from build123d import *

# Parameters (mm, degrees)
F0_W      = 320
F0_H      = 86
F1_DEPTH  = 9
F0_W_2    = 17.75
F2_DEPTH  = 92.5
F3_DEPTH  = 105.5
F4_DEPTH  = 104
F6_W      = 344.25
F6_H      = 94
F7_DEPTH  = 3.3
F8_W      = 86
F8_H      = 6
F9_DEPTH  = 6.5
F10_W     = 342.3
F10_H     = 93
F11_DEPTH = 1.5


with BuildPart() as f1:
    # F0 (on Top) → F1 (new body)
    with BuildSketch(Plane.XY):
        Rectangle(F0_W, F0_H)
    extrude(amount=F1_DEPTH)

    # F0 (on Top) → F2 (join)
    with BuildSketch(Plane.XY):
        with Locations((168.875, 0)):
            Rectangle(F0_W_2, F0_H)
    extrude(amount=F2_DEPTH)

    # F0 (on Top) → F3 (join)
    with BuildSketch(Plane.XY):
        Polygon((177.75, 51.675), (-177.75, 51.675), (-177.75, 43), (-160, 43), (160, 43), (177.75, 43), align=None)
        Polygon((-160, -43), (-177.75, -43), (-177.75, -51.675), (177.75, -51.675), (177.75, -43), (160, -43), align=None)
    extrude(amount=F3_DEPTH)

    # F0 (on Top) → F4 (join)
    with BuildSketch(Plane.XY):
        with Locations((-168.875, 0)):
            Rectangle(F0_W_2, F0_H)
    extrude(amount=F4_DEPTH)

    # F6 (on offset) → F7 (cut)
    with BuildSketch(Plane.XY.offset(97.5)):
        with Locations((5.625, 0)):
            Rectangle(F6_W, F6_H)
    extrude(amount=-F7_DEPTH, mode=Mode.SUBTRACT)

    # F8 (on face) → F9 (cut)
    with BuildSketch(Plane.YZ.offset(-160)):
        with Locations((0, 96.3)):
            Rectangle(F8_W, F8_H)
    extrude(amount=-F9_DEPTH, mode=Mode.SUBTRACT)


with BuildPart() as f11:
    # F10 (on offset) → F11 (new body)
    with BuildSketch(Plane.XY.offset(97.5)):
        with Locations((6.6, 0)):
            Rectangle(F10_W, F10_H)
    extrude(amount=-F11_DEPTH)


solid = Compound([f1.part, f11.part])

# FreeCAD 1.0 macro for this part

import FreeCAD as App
import Part
import Sketcher

V = App.Vector


def add_polygon(sketch, points):
    """Adds a closed chain of lines whose ends are joined by coincident constraints."""
    first, n = sketch.GeometryCount, len(points)
    for a, b in zip(points, points[1:] + points[:1]):
        sketch.addGeometry(Part.LineSegment(App.Vector(*a, 0), App.Vector(*b, 0)), False)
    for i in range(n):
        sketch.addConstraint(Sketcher.Constraint("Coincident", first + i, 2, first + (i + 1) % n, 1))

doc = App.newDocument("Part")
body = doc.addObject("PartDesign::Body", "Body")

sketch1 = doc.addObject("Sketcher::SketchObject", "Sketch")
body.addObject(sketch1)
sketch1.AttachmentSupport = (doc.XY_Plane, [""])
sketch1.MapMode = "FlatFace"
add_polygon(sketch1, [(-160, 43), (-160, -43), (160, -43), (160, 43)])
sketch1.addConstraint([
    Sketcher.Constraint("Vertical", 0),
    Sketcher.Constraint("Horizontal", 1),
    Sketcher.Constraint("Vertical", 2),
    Sketcher.Constraint("Horizontal", 3),
    Sketcher.Constraint("Symmetric", 0, 2, 2, 2, -1, 1),
    Sketcher.Constraint("DistanceX", 1, 1, 1, 2, 320.0),
    Sketcher.Constraint("DistanceY", 0, 2, 0, 1, 86.0),
])
pad1 = doc.addObject("PartDesign::Pad", "Pad")
body.addObject(pad1)
pad1.Profile = sketch1
pad1.Length = 9

sketch2 = doc.addObject("Sketcher::SketchObject", "Sketch001")
body.addObject(sketch2)
sketch2.AttachmentSupport = (doc.XY_Plane, [""])
sketch2.MapMode = "FlatFace"
add_polygon(sketch2, [(160, 43), (160, -43), (178, -43), (178, 43)])
sketch2.addConstraint([
    Sketcher.Constraint("Vertical", 0),
    Sketcher.Constraint("Horizontal", 1),
    Sketcher.Constraint("Vertical", 2),
    Sketcher.Constraint("Horizontal", 3),
    Sketcher.Constraint("DistanceY", 0, 2, 0, 1, 86.0),
    Sketcher.Constraint("DistanceX", -1, 1, 0, 2, 160.0),
    Sketcher.Constraint("DistanceY", 0, 2, -1, 1, 43.0),
    Sketcher.Constraint("DistanceX", 1, 1, 1, 2, 17.75),
])
pad2 = doc.addObject("PartDesign::Pad", "Pad001")
body.addObject(pad2)
pad2.Profile = sketch2
pad2.Length = 92.5

sketch3 = doc.addObject("Sketcher::SketchObject", "Sketch002")
body.addObject(sketch3)
sketch3.AttachmentSupport = (doc.XY_Plane, [""])
sketch3.MapMode = "FlatFace"
add_polygon(sketch3, [(178, 52), (-178, 52), (-178, 43), (178, 43)])
add_polygon(sketch3, [(-178, -43), (-178, -52), (178, -52), (178, -43)])
sketch3.addConstraint([
    Sketcher.Constraint("Horizontal", 0),
    Sketcher.Constraint("Vertical", 1),
    Sketcher.Constraint("Horizontal", 2),
    Sketcher.Constraint("Vertical", 3),
    Sketcher.Constraint("Vertical", 4),
    Sketcher.Constraint("Horizontal", 5),
    Sketcher.Constraint("Vertical", 6),
    Sketcher.Constraint("Horizontal", 7),
    Sketcher.Constraint("Symmetric", 3, 2, 4, 2, -1, 1),
    Sketcher.Constraint("Symmetric", 1, 2, 6, 2, -1, 1),
    Sketcher.Constraint("Vertical", 1, 2, 4, 2),
    Sketcher.Constraint("DistanceX", 0, 2, 0, 1, 355.5),
    Sketcher.Constraint("DistanceY", -1, 1, 1, 2, 43.0),
    Sketcher.Constraint("DistanceY", 1, 2, 1, 1, 8.675),
])
pad3 = doc.addObject("PartDesign::Pad", "Pad002")
body.addObject(pad3)
pad3.Profile = sketch3
pad3.Length = 105.5

sketch4 = doc.addObject("Sketcher::SketchObject", "Sketch003")
body.addObject(sketch4)
sketch4.AttachmentSupport = (doc.XY_Plane, [""])
sketch4.MapMode = "FlatFace"
add_polygon(sketch4, [(-178, 43), (-178, -43), (-160, -43), (-160, 43)])
sketch4.addConstraint([
    Sketcher.Constraint("Vertical", 0),
    Sketcher.Constraint("Horizontal", 1),
    Sketcher.Constraint("Vertical", 2),
    Sketcher.Constraint("Horizontal", 3),
    Sketcher.Constraint("DistanceY", 0, 2, 0, 1, 86.0),
    Sketcher.Constraint("DistanceY", 0, 2, -1, 1, 43.0),
    Sketcher.Constraint("DistanceX", 1, 2, -1, 1, 160.0),
    Sketcher.Constraint("DistanceX", 1, 1, 1, 2, 17.75),
])
pad4 = doc.addObject("PartDesign::Pad", "Pad003")
body.addObject(pad4)
pad4.Profile = sketch4
pad4.Length = 104

sketch5 = doc.addObject("Sketcher::SketchObject", "Sketch004")
body.addObject(sketch5)
sketch5.AttachmentSupport = (doc.XY_Plane, [""])
sketch5.MapMode = "FlatFace"
sketch5.AttachmentOffset = App.Placement(V(0, 0, 97.5), App.Rotation())
add_polygon(sketch5, [(-166, 47), (-166, -47), (178, -47), (178, 47)])
sketch5.addConstraint([
    Sketcher.Constraint("Vertical", 0),
    Sketcher.Constraint("Horizontal", 1),
    Sketcher.Constraint("Vertical", 2),
    Sketcher.Constraint("Horizontal", 3),
    Sketcher.Constraint("DistanceY", 0, 2, 0, 1, 94.0),
    Sketcher.Constraint("DistanceY", 0, 2, -1, 1, 47.0),
    Sketcher.Constraint("DistanceX", 1, 1, 1, 2, 344.25),
    Sketcher.Constraint("DistanceX", 0, 2, -1, 1, 166.5),
])
pocket1 = doc.addObject("PartDesign::Pocket", "Pocket")
body.addObject(pocket1)
pocket1.Profile = sketch5
pocket1.Length = 3.3

sketch6 = doc.addObject("Sketcher::SketchObject", "Sketch005")
body.addObject(sketch6)
sketch6.AttachmentSupport = (doc.YZ_Plane, [""])
sketch6.MapMode = "FlatFace"
sketch6.AttachmentOffset = App.Placement(V(0, 0, -160), App.Rotation())
add_polygon(sketch6, [(-43, 99), (-43, 93), (43, 93), (43, 99)])
sketch6.addConstraint([
    Sketcher.Constraint("Vertical", 0),
    Sketcher.Constraint("Horizontal", 1),
    Sketcher.Constraint("Vertical", 2),
    Sketcher.Constraint("Horizontal", 3),
    Sketcher.Constraint("DistanceX", 1, 1, 1, 2, 86.0),
    Sketcher.Constraint("DistanceY", 0, 2, 0, 1, 6.0),
    Sketcher.Constraint("DistanceX", 0, 2, -1, 1, 43.0),
    Sketcher.Constraint("DistanceY", -1, 1, 0, 2, 93.3),
])
pocket2 = doc.addObject("PartDesign::Pocket", "Pocket001")
body.addObject(pocket2)
pocket2.Profile = sketch6
pocket2.Length = 6.5
body2 = doc.addObject("PartDesign::Body", "Body001")

sketch7 = doc.addObject("Sketcher::SketchObject", "Sketch006")
body2.addObject(sketch7)
sketch7.AttachmentSupport = (doc.getObject("XY_Plane001"), [""])
sketch7.MapMode = "FlatFace"
sketch7.AttachmentOffset = App.Placement(V(0, 0, 97.5), App.Rotation())
add_polygon(sketch7, [(-165, 46), (-165, -46), (178, -46), (178, 46)])
sketch7.addConstraint([
    Sketcher.Constraint("Vertical", 0),
    Sketcher.Constraint("Horizontal", 1),
    Sketcher.Constraint("Vertical", 2),
    Sketcher.Constraint("Horizontal", 3),
    Sketcher.Constraint("DistanceY", 0, 2, 0, 1, 93.0),
    Sketcher.Constraint("DistanceX", 1, 1, 1, 2, 342.3),
    Sketcher.Constraint("DistanceY", 0, 2, -1, 1, 46.5),
    Sketcher.Constraint("DistanceX", 0, 2, -1, 1, 164.55),
])
pad5 = doc.addObject("PartDesign::Pad", "Pad004")
body2.addObject(pad5)
pad5.Profile = sketch7
pad5.Length = 1.5
pad5.Reversed = True

doc.recompute()
